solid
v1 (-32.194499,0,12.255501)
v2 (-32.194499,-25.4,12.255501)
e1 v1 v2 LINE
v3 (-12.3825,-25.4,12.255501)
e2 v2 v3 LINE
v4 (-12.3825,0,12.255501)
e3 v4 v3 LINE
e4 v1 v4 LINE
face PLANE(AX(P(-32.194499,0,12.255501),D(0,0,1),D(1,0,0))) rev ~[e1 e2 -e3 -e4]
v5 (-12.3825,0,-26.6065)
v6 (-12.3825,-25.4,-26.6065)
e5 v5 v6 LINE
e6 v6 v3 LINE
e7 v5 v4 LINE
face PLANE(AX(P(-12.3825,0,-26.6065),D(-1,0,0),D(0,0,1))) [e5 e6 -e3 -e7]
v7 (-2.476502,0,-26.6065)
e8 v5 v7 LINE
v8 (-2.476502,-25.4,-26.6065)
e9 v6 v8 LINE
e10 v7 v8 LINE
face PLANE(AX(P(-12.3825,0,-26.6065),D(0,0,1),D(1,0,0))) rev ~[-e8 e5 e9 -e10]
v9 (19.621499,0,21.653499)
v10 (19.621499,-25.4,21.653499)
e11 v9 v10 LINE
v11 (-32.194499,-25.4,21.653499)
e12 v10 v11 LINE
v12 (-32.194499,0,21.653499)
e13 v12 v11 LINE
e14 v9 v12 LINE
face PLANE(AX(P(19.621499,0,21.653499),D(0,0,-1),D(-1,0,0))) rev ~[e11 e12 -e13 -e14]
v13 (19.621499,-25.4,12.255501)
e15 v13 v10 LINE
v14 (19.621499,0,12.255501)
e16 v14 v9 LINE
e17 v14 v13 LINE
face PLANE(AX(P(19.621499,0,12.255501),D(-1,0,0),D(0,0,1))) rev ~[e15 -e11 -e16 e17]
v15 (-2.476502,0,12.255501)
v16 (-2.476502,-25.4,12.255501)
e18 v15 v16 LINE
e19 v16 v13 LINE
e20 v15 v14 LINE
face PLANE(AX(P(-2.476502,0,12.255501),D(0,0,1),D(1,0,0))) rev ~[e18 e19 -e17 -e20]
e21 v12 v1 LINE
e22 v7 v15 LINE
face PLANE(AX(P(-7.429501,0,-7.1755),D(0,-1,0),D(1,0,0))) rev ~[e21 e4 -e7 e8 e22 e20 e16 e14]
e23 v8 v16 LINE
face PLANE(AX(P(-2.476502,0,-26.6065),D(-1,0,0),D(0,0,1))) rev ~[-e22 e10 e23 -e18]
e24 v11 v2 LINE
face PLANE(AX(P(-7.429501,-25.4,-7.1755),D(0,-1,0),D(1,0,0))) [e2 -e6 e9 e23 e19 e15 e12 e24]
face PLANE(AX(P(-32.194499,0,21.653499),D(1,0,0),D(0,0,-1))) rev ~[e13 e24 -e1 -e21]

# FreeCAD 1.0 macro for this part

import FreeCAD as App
import Part
import Sketcher
from FreeCAD import Vector
Q = App.Units.Quantity

doc = App.newDocument("Part")
params = doc.addObject("Spreadsheet::Sheet", "Params")
for row, (alias, value) in enumerate([
    ("sketch1_width", "0.3899999 in"),
    ("sketch1_width2", "0.87 in"),
    ("sketch1_width3", "2.0399999 in"),
    ("sketch1_height", "1.53 in"),
    ("sketch1_height2", "0.3699999 in"),
    ("pad1_length", "1 in"),
], start=1):
    params.set(f"A{row}", alias)
    params.set(f"B{row}", "=" + value)
    params.setAlias(f"B{row}", alias)

body = doc.addObject("PartDesign::Body", "Body")

# Sketch on XZ plane
sketch1 = doc.addObject("Sketcher::SketchObject", "Sketch")
body.addObject(sketch1)
sketch1.AttachmentSupport = (doc.XZ_Plane, [""])
sketch1.MapMode = "FlatFace"
sketch1.addGeometry(Part.LineSegment(Vector(-12, 12, 0), Vector(-12, -27, 0)), False)
sketch1.addGeometry(Part.LineSegment(Vector(-12, -27, 0), Vector(-2, -27, 0)), False)
sketch1.addGeometry(Part.LineSegment(Vector(-2, -27, 0), Vector(-2, 12, 0)), False)
sketch1.addGeometry(Part.LineSegment(Vector(-2, 12, 0), Vector(20, 12, 0)), False)
sketch1.addGeometry(Part.LineSegment(Vector(20, 12, 0), Vector(20, 22, 0)), False)
sketch1.addGeometry(Part.LineSegment(Vector(20, 22, 0), Vector(-32, 22, 0)), False)
sketch1.addGeometry(Part.LineSegment(Vector(-32, 22, 0), Vector(-32, 12, 0)), False)
sketch1.addGeometry(Part.LineSegment(Vector(-32, 12, 0), Vector(-12, 12, 0)), False)
sketch1.addConstraint(Sketcher.Constraint("Coincident", 0, 2, 1, 1))
sketch1.addConstraint(Sketcher.Constraint("Coincident", 1, 2, 2, 1))
sketch1.addConstraint(Sketcher.Constraint("Coincident", 2, 2, 3, 1))
sketch1.addConstraint(Sketcher.Constraint("Coincident", 3, 2, 4, 1))
sketch1.addConstraint(Sketcher.Constraint("Coincident", 4, 2, 5, 1))
sketch1.addConstraint(Sketcher.Constraint("Coincident", 5, 2, 6, 1))
sketch1.addConstraint(Sketcher.Constraint("Coincident", 6, 2, 7, 1))
sketch1.addConstraint(Sketcher.Constraint("Coincident", 7, 2, 0, 1))
sketch1.addConstraint(Sketcher.Constraint("Vertical", 0))
sketch1.addConstraint(Sketcher.Constraint("Horizontal", 1))
sketch1.addConstraint(Sketcher.Constraint("Vertical", 2))
sketch1.addConstraint(Sketcher.Constraint("Horizontal", 3))
sketch1.addConstraint(Sketcher.Constraint("Vertical", 4))
sketch1.addConstraint(Sketcher.Constraint("Horizontal", 5))
sketch1.addConstraint(Sketcher.Constraint("Vertical", 6))
sketch1.addConstraint(Sketcher.Constraint("Horizontal", 7))
sketch1.addConstraint(Sketcher.Constraint("Horizontal", 3, 2, 6, 2))
sketch1.addConstraint(Sketcher.Constraint("DistanceX", 1, 1, 1, 2, Q("0.3899999 in")))
sketch1.addConstraint(Sketcher.Constraint("DistanceX", 3, 1, 3, 2, Q("0.87 in")))
sketch1.addConstraint(Sketcher.Constraint("DistanceX", 5, 2, 5, 1, Q("2.0399999 in")))
sketch1.addConstraint(Sketcher.Constraint("DistanceY", 0, 2, 0, 1, Q("1.53 in")))
sketch1.addConstraint(Sketcher.Constraint("DistanceY", 4, 1, 4, 2, Q("0.3699999 in")))
sketch1.addConstraint(Sketcher.Constraint("DistanceX", 0, 2, -1, 1, Q("0.4875 in")))
sketch1.addConstraint(Sketcher.Constraint("DistanceY", 0, 2, -1, 1, Q("1.0475 in")))
sketch1.setExpression("Constraints[17]", "Params.sketch1_width")
sketch1.setExpression("Constraints[18]", "Params.sketch1_width2")
sketch1.setExpression("Constraints[19]", "Params.sketch1_width3")
sketch1.setExpression("Constraints[20]", "Params.sketch1_height")
sketch1.setExpression("Constraints[21]", "Params.sketch1_height2")
pad1 = doc.addObject("PartDesign::Pad", "Pad")
body.addObject(pad1)
pad1.Profile = sketch1
pad1.setExpression("Length", "Params.pad1_length")

doc.recompute()
